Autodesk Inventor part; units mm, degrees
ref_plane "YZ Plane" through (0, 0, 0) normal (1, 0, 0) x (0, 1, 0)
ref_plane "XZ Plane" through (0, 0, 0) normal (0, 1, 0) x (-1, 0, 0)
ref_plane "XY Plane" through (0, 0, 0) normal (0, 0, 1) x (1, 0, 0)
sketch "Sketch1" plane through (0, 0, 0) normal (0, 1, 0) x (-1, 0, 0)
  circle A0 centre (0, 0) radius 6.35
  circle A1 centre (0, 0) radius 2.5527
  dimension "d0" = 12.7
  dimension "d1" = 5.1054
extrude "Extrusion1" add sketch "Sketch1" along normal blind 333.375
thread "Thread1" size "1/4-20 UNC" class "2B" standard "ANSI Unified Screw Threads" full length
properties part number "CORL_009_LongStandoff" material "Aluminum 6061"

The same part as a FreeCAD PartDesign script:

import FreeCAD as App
import Part
import Sketcher

V = App.Vector
Q = App.Units.Quantity

doc = App.newDocument("Part")
body = doc.addObject("PartDesign::Body", "Body")

# Sketch on XZ plane
sketch1 = doc.addObject("Sketcher::SketchObject", "Sketch")
body.addObject(sketch1)
sketch1.AttachmentSupport = (doc.XZ_Plane, [""])
sketch1.MapMode = "FlatFace"
sketch1.addGeometry([
    Part.Circle(V(0, 0, 0), V(0, 0, 1), 6.3),
    Part.Circle(V(0, 0, 0), V(0, 0, 1), 2.6),
], False)
sketch1.addConstraint([
    Sketcher.Constraint("Coincident", 0, 3, -1, 1),
    Sketcher.Constraint("Coincident", 1, 3, -1, 1),
    Sketcher.Constraint("Diameter", 0, Q("0.5 in")),
    Sketcher.Constraint("Diameter", 1, Q("0.201 in")),
])
pad1 = doc.addObject("PartDesign::Pad", "Pad")
body.addObject(pad1)
pad1.Profile = sketch1
pad1.Length = Q("13.125 in")
pad1.Reversed = True

doc.recompute()
